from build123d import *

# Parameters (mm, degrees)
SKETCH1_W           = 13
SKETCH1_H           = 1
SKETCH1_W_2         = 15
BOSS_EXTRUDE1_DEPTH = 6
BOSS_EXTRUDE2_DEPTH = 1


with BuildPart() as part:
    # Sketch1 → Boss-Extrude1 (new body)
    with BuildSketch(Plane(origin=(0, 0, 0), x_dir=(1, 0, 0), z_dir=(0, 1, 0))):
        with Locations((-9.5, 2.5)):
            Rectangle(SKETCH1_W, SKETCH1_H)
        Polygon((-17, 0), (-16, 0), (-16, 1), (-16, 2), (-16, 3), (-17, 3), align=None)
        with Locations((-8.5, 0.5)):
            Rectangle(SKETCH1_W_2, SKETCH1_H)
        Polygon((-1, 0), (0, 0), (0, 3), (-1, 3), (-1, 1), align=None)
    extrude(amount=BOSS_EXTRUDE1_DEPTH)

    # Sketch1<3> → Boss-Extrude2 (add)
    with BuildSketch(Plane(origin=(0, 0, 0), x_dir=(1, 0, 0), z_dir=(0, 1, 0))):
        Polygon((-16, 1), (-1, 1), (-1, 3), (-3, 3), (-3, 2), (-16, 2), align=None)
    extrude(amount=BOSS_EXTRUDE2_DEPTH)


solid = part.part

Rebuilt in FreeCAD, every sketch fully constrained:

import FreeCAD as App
import Part
import Sketcher
from FreeCAD import Vector
Q = App.Units.Quantity


def add_polygon(sketch, points):
    """Adds a closed chain of lines whose ends are joined by coincident constraints."""
    first, n = sketch.GeometryCount, len(points)
    for a, b in zip(points, points[1:] + points[:1]):
        sketch.addGeometry(Part.LineSegment(App.Vector(*a, 0), App.Vector(*b, 0)), False)
    for i in range(n):
        sketch.addConstraint(Sketcher.Constraint("Coincident", first + i, 2, first + (i + 1) % n, 1))

doc = App.newDocument("Part")
body = doc.addObject("PartDesign::Body", "Body")

sketch1 = doc.addObject("Sketcher::SketchObject", "Sketch")
body.addObject(sketch1)
sketch1.AttachmentSupport = (doc.XZ_Plane, [""])
sketch1.MapMode = "FlatFace"
add_polygon(sketch1, [(-16, -2), (-3, -2), (-3, -3), (-17, -3), (-17, 0), (0, 0), (0, -3), (-1, -3), (-1, -1), (-16, -1)])
sketch1.addConstraint(Sketcher.Constraint("Horizontal", 0))
sketch1.addConstraint(Sketcher.Constraint("Vertical", 1))
sketch1.addConstraint(Sketcher.Constraint("Horizontal", 2))
sketch1.addConstraint(Sketcher.Constraint("Vertical", 3))
sketch1.addConstraint(Sketcher.Constraint("Horizontal", 4))
sketch1.addConstraint(Sketcher.Constraint("Vertical", 5))
sketch1.addConstraint(Sketcher.Constraint("Horizontal", 6))
sketch1.addConstraint(Sketcher.Constraint("Vertical", 7))
sketch1.addConstraint(Sketcher.Constraint("Horizontal", 8))
sketch1.addConstraint(Sketcher.Constraint("Vertical", 9))
sketch1.addConstraint(Sketcher.Constraint("Coincident", 4, 2, -1, 1))
sketch1.addConstraint(Sketcher.Constraint("Horizontal", 2, 2, 5, 2))
sketch1.addConstraint(Sketcher.Constraint("Equal", 6, 1))
sketch1.addConstraint(Sketcher.Constraint("Equal", 1, 9))
sketch1.addConstraint(Sketcher.Constraint("DistanceX", 0, 1, 0, 2, Q("13 mm")))
sketch1.addConstraint(Sketcher.Constraint("DistanceX", 2, 2, 2, 1, Q("14 mm")))
sketch1.addConstraint(Sketcher.Constraint("DistanceX", 4, 1, 4, 2, Q("17 mm")))
sketch1.addConstraint(Sketcher.Constraint("DistanceX", 6, 2, 6, 1, Q("1 mm")))
sketch1.addConstraint(Sketcher.Constraint("DistanceY", 3, 1, 3, 2, Q("3 mm")))
pad1 = doc.addObject("PartDesign::Pad", "Pad")
body.addObject(pad1)
pad1.Profile = sketch1
pad1.Length = 6
pad1.Reversed = True

sketch2 = doc.addObject("Sketcher::SketchObject", "Sketch001")
body.addObject(sketch2)
sketch2.AttachmentSupport = (doc.XZ_Plane, [""])
sketch2.MapMode = "FlatFace"
add_polygon(sketch2, [(-16, -1), (-1, -1), (-1, -3), (-3, -3), (-3, -2), (-16, -2)])
sketch2.addConstraint(Sketcher.Constraint("Horizontal", 0))
sketch2.addConstraint(Sketcher.Constraint("Vertical", 1))
sketch2.addConstraint(Sketcher.Constraint("Horizontal", 2))
sketch2.addConstraint(Sketcher.Constraint("Vertical", 3))
sketch2.addConstraint(Sketcher.Constraint("Horizontal", 4))
sketch2.addConstraint(Sketcher.Constraint("Vertical", 5))
sketch2.addConstraint(Sketcher.Constraint("Equal", 2, 1))
sketch2.addConstraint(Sketcher.Constraint("Equal", 3, 5))
sketch2.addConstraint(Sketcher.Constraint("DistanceX", 0, 1, 0, 2, Q("15 mm")))
sketch2.addConstraint(Sketcher.Constraint("DistanceX", 2, 2, 2, 1, Q("2 mm")))
sketch2.addConstraint(Sketcher.Constraint("DistanceX", 0, 2, -1, 1, Q("1 mm")))
sketch2.addConstraint(Sketcher.Constraint("DistanceY", 0, 2, -1, 1, Q("1 mm")))
pad2 = doc.addObject("PartDesign::Pad", "Pad001")
body.addObject(pad2)
pad2.Profile = sketch2
pad2.Length = 1
pad2.Reversed = True

doc.recompute()
